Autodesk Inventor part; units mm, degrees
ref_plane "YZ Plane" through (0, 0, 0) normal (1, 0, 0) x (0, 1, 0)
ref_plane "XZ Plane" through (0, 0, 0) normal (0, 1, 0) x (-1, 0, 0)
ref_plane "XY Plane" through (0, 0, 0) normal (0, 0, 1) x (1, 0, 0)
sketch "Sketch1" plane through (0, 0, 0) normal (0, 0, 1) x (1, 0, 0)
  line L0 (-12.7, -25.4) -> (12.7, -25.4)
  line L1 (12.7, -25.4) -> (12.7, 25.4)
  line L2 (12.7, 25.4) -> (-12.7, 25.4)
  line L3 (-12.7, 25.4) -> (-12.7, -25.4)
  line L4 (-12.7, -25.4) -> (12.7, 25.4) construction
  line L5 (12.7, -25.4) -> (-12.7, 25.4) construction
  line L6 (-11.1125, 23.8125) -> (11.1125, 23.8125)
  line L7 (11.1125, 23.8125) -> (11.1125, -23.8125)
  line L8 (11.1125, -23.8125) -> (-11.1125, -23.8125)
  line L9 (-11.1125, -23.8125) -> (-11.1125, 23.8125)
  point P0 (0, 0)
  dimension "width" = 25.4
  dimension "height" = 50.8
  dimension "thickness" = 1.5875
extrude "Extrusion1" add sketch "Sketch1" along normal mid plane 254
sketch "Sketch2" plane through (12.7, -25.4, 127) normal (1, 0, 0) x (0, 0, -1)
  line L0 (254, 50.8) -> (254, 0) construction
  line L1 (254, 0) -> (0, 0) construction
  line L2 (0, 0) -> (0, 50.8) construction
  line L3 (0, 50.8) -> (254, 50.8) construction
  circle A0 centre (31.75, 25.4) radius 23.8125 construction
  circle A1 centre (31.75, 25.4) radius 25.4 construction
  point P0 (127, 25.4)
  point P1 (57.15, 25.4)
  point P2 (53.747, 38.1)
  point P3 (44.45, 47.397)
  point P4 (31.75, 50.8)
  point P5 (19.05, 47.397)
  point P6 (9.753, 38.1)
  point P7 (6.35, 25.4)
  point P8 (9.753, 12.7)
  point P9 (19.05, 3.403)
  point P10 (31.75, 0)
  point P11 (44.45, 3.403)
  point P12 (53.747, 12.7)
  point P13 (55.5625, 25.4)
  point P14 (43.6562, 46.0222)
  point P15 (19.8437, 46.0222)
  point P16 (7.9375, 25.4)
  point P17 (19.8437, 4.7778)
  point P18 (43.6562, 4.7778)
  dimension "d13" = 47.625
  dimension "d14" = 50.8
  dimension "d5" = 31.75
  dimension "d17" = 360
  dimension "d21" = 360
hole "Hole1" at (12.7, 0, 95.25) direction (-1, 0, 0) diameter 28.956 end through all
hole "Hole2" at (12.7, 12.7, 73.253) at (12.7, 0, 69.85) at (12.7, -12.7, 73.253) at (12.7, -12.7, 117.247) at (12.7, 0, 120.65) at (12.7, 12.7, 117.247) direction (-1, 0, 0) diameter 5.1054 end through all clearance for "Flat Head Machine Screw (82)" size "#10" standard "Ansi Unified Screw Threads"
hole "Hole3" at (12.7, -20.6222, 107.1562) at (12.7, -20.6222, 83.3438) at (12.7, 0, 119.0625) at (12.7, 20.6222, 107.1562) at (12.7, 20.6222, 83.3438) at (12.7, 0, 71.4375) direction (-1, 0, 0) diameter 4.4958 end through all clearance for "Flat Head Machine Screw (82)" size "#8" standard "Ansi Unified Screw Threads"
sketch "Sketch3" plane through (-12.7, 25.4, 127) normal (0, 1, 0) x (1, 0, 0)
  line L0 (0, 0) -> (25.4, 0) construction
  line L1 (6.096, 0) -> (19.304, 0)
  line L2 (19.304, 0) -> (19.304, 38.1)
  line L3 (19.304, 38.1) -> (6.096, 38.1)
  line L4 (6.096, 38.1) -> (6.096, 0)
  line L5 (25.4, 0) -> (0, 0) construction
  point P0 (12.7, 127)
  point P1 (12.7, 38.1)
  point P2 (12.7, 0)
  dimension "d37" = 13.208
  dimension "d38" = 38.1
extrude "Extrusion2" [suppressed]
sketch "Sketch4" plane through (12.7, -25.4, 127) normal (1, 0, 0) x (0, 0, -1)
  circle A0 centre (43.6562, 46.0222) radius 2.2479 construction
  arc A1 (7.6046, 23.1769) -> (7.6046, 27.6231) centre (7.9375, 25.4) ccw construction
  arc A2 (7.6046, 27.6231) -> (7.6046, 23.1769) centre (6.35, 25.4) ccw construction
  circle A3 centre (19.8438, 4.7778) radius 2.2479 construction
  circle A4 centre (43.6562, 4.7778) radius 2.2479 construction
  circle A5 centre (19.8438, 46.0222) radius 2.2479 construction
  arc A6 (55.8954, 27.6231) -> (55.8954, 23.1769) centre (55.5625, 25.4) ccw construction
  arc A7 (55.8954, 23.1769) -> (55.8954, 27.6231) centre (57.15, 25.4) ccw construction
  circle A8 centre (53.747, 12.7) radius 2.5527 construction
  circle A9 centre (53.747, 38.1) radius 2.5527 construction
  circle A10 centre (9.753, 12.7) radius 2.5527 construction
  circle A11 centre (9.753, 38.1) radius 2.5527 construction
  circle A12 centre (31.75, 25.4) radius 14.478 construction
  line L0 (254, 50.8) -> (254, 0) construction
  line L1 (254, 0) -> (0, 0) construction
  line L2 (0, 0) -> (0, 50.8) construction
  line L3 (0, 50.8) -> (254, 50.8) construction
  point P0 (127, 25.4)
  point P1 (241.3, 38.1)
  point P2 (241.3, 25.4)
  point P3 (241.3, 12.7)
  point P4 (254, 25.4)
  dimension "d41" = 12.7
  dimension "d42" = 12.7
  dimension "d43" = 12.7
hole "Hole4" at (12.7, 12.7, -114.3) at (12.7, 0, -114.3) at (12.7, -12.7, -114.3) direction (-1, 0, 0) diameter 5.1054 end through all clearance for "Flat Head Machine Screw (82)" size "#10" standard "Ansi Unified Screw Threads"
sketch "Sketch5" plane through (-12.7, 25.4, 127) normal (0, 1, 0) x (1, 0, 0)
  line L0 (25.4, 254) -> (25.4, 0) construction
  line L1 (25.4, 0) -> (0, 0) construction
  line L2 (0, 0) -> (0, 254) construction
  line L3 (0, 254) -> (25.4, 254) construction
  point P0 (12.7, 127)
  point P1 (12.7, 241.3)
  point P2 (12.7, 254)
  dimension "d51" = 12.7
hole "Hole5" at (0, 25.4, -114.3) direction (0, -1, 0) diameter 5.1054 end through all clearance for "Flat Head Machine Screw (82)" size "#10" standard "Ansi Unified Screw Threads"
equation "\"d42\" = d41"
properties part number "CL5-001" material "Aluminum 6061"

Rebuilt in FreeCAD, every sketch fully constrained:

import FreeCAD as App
import Part
import Sketcher
Q = App.Units.Quantity

doc = App.newDocument("Part")
body = doc.addObject("PartDesign::Body", "Body")

# Sketch on XY plane
sketch1 = doc.addObject("Sketcher::SketchObject", "Sketch")
body.addObject(sketch1)
sketch1.AttachmentSupport = (doc.XY_Plane, [""])
sketch1.MapMode = "FlatFace"
sketch1.addGeometry(Part.LineSegment(App.Vector(-13, 25, 0), App.Vector(-13, -25, 0)), False)
sketch1.addGeometry(Part.LineSegment(App.Vector(-13, -25, 0), App.Vector(13, -25, 0)), False)
sketch1.addGeometry(Part.LineSegment(App.Vector(13, -25, 0), App.Vector(13, 25, 0)), False)
sketch1.addGeometry(Part.LineSegment(App.Vector(13, 25, 0), App.Vector(-13, 25, 0)), False)
sketch1.addGeometry(Part.LineSegment(App.Vector(-11, -24, 0), App.Vector(-11, 24, 0)), False)
sketch1.addGeometry(Part.LineSegment(App.Vector(-11, 24, 0), App.Vector(11, 24, 0)), False)
sketch1.addGeometry(Part.LineSegment(App.Vector(11, 24, 0), App.Vector(11, -24, 0)), False)
sketch1.addGeometry(Part.LineSegment(App.Vector(11, -24, 0), App.Vector(-11, -24, 0)), False)
sketch1.addConstraint(Sketcher.Constraint("Coincident", 0, 2, 1, 1))
sketch1.addConstraint(Sketcher.Constraint("Coincident", 1, 2, 2, 1))
sketch1.addConstraint(Sketcher.Constraint("Coincident", 2, 2, 3, 1))
sketch1.addConstraint(Sketcher.Constraint("Coincident", 3, 2, 0, 1))
sketch1.addConstraint(Sketcher.Constraint("Coincident", 4, 2, 5, 1))
sketch1.addConstraint(Sketcher.Constraint("Coincident", 5, 2, 6, 1))
sketch1.addConstraint(Sketcher.Constraint("Coincident", 6, 2, 7, 1))
sketch1.addConstraint(Sketcher.Constraint("Coincident", 7, 2, 4, 1))
sketch1.addConstraint(Sketcher.Constraint("Vertical", 0))
sketch1.addConstraint(Sketcher.Constraint("Horizontal", 1))
sketch1.addConstraint(Sketcher.Constraint("Vertical", 2))
sketch1.addConstraint(Sketcher.Constraint("Horizontal", 3))
sketch1.addConstraint(Sketcher.Constraint("Vertical", 4))
sketch1.addConstraint(Sketcher.Constraint("Horizontal", 5))
sketch1.addConstraint(Sketcher.Constraint("Vertical", 6))
sketch1.addConstraint(Sketcher.Constraint("Horizontal", 7))
sketch1.addConstraint(Sketcher.Constraint("Symmetric", 0, 2, 2, 2, -1, 1))
sketch1.addConstraint(Sketcher.Constraint("Symmetric", 4, 2, 6, 2, -1, 1))
sketch1.addConstraint(Sketcher.Constraint("DistanceX", 1, 1, 1, 2, Q("1 in")))
sketch1.addConstraint(Sketcher.Constraint("DistanceY", 0, 2, 0, 1, Q("2 in")))
sketch1.addConstraint(Sketcher.Constraint("DistanceX", 3, 2, 4, 2, Q("0.0625 in")))
sketch1.addConstraint(Sketcher.Constraint("DistanceY", 4, 2, 3, 2, Q("0.0625 in")))
pad1 = doc.addObject("PartDesign::Pad", "Pad")
body.addObject(pad1)
pad1.Profile = sketch1
pad1.Length = Q("10 in")
pad1.Midplane = True

# Sketch on YZ plane
sketch2 = doc.addObject("Sketcher::SketchObject", "Sketch001")
body.addObject(sketch2)
sketch2.AttachmentSupport = (doc.YZ_Plane, [""])
sketch2.MapMode = "FlatFace"
sketch2.AttachmentOffset = App.Placement(App.Vector(0, 0, 0.5 * 25.4), App.Rotation())
sketch2.addGeometry(Part.Circle(App.Vector(0, 95, 0), App.Vector(0, 0, 1), 14), False)
sketch2.addConstraint(Sketcher.Constraint("PointOnObject", 0, 3, -2))
sketch2.addConstraint(Sketcher.Constraint("Diameter", 0, Q("1.14 in")))
sketch2.addConstraint(Sketcher.Constraint("DistanceY", -1, 1, 0, 3, Q("3.75 in")))
doc.recompute()
hole = doc.addObject("PartDesign::Hole", "Hole")
body.addObject(hole)
hole.Profile = sketch2
hole.ThreadType = "None"
hole.Diameter = Q("1.14 in")
hole.DepthType = "ThroughAll"

# Sketch on YZ plane
sketch3 = doc.addObject("Sketcher::SketchObject", "Sketch002")
body.addObject(sketch3)
sketch3.AttachmentSupport = (doc.YZ_Plane, [""])
sketch3.MapMode = "FlatFace"
sketch3.AttachmentOffset = App.Placement(App.Vector(0, 0, 0.5 * 25.4), App.Rotation())
sketch3.addGeometry(Part.Circle(App.Vector(12.7, 73.3, 0), App.Vector(0, 0, 1), 2.6), False)
sketch3.addGeometry(Part.Circle(App.Vector(0, 69.8, 0), App.Vector(0, 0, 1), 2.6), False)
sketch3.addGeometry(Part.Circle(App.Vector(-12.7, 73.3, 0), App.Vector(0, 0, 1), 2.6), False)
sketch3.addGeometry(Part.Circle(App.Vector(-12.7, 117.2, 0), App.Vector(0, 0, 1), 2.6), False)
sketch3.addGeometry(Part.Circle(App.Vector(0, 120.7, 0), App.Vector(0, 0, 1), 2.6), False)
sketch3.addGeometry(Part.Circle(App.Vector(12.7, 117.2, 0), App.Vector(0, 0, 1), 2.6), False)
sketch3.addConstraint(Sketcher.Constraint("Equal", 0, 1))
sketch3.addConstraint(Sketcher.Constraint("Equal", 1, 2))
sketch3.addConstraint(Sketcher.Constraint("Equal", 2, 3))
sketch3.addConstraint(Sketcher.Constraint("Equal", 3, 4))
sketch3.addConstraint(Sketcher.Constraint("Equal", 4, 5))
sketch3.addConstraint(Sketcher.Constraint("Symmetric", 0, 3, 2, 3, -2))
sketch3.addConstraint(Sketcher.Constraint("Symmetric", 3, 3, 5, 3, -2))
sketch3.addConstraint(Sketcher.Constraint("PointOnObject", 1, 3, -2))
sketch3.addConstraint(Sketcher.Constraint("PointOnObject", 4, 3, -2))
sketch3.addConstraint(Sketcher.Constraint("Vertical", 2, 3, 3, 3))
sketch3.addConstraint(Sketcher.Constraint("Diameter", 0, Q("0.201 in")))
sketch3.addConstraint(Sketcher.Constraint("DistanceX", 2, 3, 0, 3, Q("1 in")))
sketch3.addConstraint(Sketcher.Constraint("DistanceY", 1, 3, 4, 3, Q("2 in")))
sketch3.addConstraint(Sketcher.Constraint("DistanceY", -1, 1, 1, 3, Q("2.75 in")))
sketch3.addConstraint(Sketcher.Constraint("DistanceY", -1, 1, 0, 3, 73.253))
sketch3.addConstraint(Sketcher.Constraint("DistanceY", -1, 1, 3, 3, 117.247))
doc.recompute()
hole2 = doc.addObject("PartDesign::Hole", "Hole001")
body.addObject(hole2)
hole2.Profile = sketch3
hole2.ThreadType = "None"
hole2.Diameter = Q("0.201 in")
hole2.DepthType = "ThroughAll"

# Sketch on YZ plane
sketch4 = doc.addObject("Sketcher::SketchObject", "Sketch003")
body.addObject(sketch4)
sketch4.AttachmentSupport = (doc.YZ_Plane, [""])
sketch4.MapMode = "FlatFace"
sketch4.AttachmentOffset = App.Placement(App.Vector(0, 0, 0.5 * 25.4), App.Rotation())
sketch4.addGeometry(Part.Circle(App.Vector(-20.6, 107.2, 0), App.Vector(0, 0, 1), 2.2), False)
sketch4.addGeometry(Part.Circle(App.Vector(-20.6, 83.3, 0), App.Vector(0, 0, 1), 2.2), False)
sketch4.addGeometry(Part.Circle(App.Vector(0, 119.1, 0), App.Vector(0, 0, 1), 2.2), False)
sketch4.addGeometry(Part.Circle(App.Vector(20.6, 107.2, 0), App.Vector(0, 0, 1), 2.2), False)
sketch4.addGeometry(Part.Circle(App.Vector(20.6, 83.3, 0), App.Vector(0, 0, 1), 2.2), False)
sketch4.addGeometry(Part.Circle(App.Vector(0, 71.4, 0), App.Vector(0, 0, 1), 2.2), False)
sketch4.addConstraint(Sketcher.Constraint("Equal", 0, 1))
sketch4.addConstraint(Sketcher.Constraint("Equal", 1, 2))
sketch4.addConstraint(Sketcher.Constraint("Equal", 2, 3))
sketch4.addConstraint(Sketcher.Constraint("Equal", 3, 4))
sketch4.addConstraint(Sketcher.Constraint("Equal", 4, 5))
sketch4.addConstraint(Sketcher.Constraint("Symmetric", 0, 3, 3, 3, -2))
sketch4.addConstraint(Sketcher.Constraint("Symmetric", 1, 3, 4, 3, -2))
sketch4.addConstraint(Sketcher.Constraint("PointOnObject", 2, 3, -2))
sketch4.addConstraint(Sketcher.Constraint("PointOnObject", 5, 3, -2))
sketch4.addConstraint(Sketcher.Constraint("Vertical", 0, 3, 1, 3))
sketch4.addConstraint(Sketcher.Constraint("Diameter", 0, Q("0.177 in")))
sketch4.addConstraint(Sketcher.Constraint("DistanceY", -1, 1, 0, 3, Q("4.218748 in")))
sketch4.addConstraint(Sketcher.Constraint("DistanceY", -1, 1, 1, 3, Q("3.281252 in")))
sketch4.addConstraint(Sketcher.Constraint("DistanceY", -1, 1, 2, 3, Q("4.6875 in")))
sketch4.addConstraint(Sketcher.Constraint("DistanceY", -1, 1, 5, 3, Q("2.8125 in")))
sketch4.addConstraint(Sketcher.Constraint("DistanceX", 0, 3, -1, 1, Q("0.8119 in")))
doc.recompute()
hole3 = doc.addObject("PartDesign::Hole", "Hole002")
body.addObject(hole3)
hole3.Profile = sketch4
hole3.ThreadType = "None"
hole3.Diameter = Q("0.177 in")
hole3.DepthType = "ThroughAll"

# Sketch on YZ plane
sketch5 = doc.addObject("Sketcher::SketchObject", "Sketch004")
body.addObject(sketch5)
sketch5.AttachmentSupport = (doc.YZ_Plane, [""])
sketch5.MapMode = "FlatFace"
sketch5.AttachmentOffset = App.Placement(App.Vector(0, 0, 0.5 * 25.4), App.Rotation())
sketch5.addGeometry(Part.Circle(App.Vector(12.7, -114.3, 0), App.Vector(0, 0, 1), 2.6), False)
sketch5.addGeometry(Part.Circle(App.Vector(0, -114.3, 0), App.Vector(0, 0, 1), 2.6), False)
sketch5.addGeometry(Part.Circle(App.Vector(-12.7, -114.3, 0), App.Vector(0, 0, 1), 2.6), False)
sketch5.addConstraint(Sketcher.Constraint("Equal", 0, 1))
sketch5.addConstraint(Sketcher.Constraint("Equal", 1, 2))
sketch5.addConstraint(Sketcher.Constraint("Symmetric", 0, 3, 2, 3, -2))
sketch5.addConstraint(Sketcher.Constraint("PointOnObject", 1, 3, -2))
sketch5.addConstraint(Sketcher.Constraint("Horizontal", 0, 3, 1, 3))
sketch5.addConstraint(Sketcher.Constraint("Diameter", 0, Q("0.201 in")))
sketch5.addConstraint(Sketcher.Constraint("DistanceX", 2, 3, 0, 3, Q("1 in")))
sketch5.addConstraint(Sketcher.Constraint("DistanceY", 0, 3, -1, 1, Q("4.5 in")))
doc.recompute()
hole4 = doc.addObject("PartDesign::Hole", "Hole003")
body.addObject(hole4)
hole4.Profile = sketch5
hole4.ThreadType = "None"
hole4.Diameter = Q("0.201 in")
hole4.DepthType = "ThroughAll"

# Sketch on XZ plane
sketch6 = doc.addObject("Sketcher::SketchObject", "Sketch005")
body.addObject(sketch6)
sketch6.AttachmentSupport = (doc.XZ_Plane, [""])
sketch6.MapMode = "FlatFace"
sketch6.AttachmentOffset = App.Placement(App.Vector(0, 0, -1 * 25.4), App.Rotation())
sketch6.addGeometry(Part.Circle(App.Vector(0, -114.3, 0), App.Vector(0, 0, 1), 2.6), False)
sketch6.addConstraint(Sketcher.Constraint("PointOnObject", 0, 3, -2))
sketch6.addConstraint(Sketcher.Constraint("Diameter", 0, Q("0.201 in")))
sketch6.addConstraint(Sketcher.Constraint("DistanceY", 0, 3, -1, 1, Q("4.5 in")))
doc.recompute()
hole5 = doc.addObject("PartDesign::Hole", "Hole004")
body.addObject(hole5)
hole5.Profile = sketch6
hole5.ThreadType = "None"
hole5.Diameter = Q("0.201 in")
hole5.DepthType = "ThroughAll"
hole5.Reversed = True

doc.recompute()
